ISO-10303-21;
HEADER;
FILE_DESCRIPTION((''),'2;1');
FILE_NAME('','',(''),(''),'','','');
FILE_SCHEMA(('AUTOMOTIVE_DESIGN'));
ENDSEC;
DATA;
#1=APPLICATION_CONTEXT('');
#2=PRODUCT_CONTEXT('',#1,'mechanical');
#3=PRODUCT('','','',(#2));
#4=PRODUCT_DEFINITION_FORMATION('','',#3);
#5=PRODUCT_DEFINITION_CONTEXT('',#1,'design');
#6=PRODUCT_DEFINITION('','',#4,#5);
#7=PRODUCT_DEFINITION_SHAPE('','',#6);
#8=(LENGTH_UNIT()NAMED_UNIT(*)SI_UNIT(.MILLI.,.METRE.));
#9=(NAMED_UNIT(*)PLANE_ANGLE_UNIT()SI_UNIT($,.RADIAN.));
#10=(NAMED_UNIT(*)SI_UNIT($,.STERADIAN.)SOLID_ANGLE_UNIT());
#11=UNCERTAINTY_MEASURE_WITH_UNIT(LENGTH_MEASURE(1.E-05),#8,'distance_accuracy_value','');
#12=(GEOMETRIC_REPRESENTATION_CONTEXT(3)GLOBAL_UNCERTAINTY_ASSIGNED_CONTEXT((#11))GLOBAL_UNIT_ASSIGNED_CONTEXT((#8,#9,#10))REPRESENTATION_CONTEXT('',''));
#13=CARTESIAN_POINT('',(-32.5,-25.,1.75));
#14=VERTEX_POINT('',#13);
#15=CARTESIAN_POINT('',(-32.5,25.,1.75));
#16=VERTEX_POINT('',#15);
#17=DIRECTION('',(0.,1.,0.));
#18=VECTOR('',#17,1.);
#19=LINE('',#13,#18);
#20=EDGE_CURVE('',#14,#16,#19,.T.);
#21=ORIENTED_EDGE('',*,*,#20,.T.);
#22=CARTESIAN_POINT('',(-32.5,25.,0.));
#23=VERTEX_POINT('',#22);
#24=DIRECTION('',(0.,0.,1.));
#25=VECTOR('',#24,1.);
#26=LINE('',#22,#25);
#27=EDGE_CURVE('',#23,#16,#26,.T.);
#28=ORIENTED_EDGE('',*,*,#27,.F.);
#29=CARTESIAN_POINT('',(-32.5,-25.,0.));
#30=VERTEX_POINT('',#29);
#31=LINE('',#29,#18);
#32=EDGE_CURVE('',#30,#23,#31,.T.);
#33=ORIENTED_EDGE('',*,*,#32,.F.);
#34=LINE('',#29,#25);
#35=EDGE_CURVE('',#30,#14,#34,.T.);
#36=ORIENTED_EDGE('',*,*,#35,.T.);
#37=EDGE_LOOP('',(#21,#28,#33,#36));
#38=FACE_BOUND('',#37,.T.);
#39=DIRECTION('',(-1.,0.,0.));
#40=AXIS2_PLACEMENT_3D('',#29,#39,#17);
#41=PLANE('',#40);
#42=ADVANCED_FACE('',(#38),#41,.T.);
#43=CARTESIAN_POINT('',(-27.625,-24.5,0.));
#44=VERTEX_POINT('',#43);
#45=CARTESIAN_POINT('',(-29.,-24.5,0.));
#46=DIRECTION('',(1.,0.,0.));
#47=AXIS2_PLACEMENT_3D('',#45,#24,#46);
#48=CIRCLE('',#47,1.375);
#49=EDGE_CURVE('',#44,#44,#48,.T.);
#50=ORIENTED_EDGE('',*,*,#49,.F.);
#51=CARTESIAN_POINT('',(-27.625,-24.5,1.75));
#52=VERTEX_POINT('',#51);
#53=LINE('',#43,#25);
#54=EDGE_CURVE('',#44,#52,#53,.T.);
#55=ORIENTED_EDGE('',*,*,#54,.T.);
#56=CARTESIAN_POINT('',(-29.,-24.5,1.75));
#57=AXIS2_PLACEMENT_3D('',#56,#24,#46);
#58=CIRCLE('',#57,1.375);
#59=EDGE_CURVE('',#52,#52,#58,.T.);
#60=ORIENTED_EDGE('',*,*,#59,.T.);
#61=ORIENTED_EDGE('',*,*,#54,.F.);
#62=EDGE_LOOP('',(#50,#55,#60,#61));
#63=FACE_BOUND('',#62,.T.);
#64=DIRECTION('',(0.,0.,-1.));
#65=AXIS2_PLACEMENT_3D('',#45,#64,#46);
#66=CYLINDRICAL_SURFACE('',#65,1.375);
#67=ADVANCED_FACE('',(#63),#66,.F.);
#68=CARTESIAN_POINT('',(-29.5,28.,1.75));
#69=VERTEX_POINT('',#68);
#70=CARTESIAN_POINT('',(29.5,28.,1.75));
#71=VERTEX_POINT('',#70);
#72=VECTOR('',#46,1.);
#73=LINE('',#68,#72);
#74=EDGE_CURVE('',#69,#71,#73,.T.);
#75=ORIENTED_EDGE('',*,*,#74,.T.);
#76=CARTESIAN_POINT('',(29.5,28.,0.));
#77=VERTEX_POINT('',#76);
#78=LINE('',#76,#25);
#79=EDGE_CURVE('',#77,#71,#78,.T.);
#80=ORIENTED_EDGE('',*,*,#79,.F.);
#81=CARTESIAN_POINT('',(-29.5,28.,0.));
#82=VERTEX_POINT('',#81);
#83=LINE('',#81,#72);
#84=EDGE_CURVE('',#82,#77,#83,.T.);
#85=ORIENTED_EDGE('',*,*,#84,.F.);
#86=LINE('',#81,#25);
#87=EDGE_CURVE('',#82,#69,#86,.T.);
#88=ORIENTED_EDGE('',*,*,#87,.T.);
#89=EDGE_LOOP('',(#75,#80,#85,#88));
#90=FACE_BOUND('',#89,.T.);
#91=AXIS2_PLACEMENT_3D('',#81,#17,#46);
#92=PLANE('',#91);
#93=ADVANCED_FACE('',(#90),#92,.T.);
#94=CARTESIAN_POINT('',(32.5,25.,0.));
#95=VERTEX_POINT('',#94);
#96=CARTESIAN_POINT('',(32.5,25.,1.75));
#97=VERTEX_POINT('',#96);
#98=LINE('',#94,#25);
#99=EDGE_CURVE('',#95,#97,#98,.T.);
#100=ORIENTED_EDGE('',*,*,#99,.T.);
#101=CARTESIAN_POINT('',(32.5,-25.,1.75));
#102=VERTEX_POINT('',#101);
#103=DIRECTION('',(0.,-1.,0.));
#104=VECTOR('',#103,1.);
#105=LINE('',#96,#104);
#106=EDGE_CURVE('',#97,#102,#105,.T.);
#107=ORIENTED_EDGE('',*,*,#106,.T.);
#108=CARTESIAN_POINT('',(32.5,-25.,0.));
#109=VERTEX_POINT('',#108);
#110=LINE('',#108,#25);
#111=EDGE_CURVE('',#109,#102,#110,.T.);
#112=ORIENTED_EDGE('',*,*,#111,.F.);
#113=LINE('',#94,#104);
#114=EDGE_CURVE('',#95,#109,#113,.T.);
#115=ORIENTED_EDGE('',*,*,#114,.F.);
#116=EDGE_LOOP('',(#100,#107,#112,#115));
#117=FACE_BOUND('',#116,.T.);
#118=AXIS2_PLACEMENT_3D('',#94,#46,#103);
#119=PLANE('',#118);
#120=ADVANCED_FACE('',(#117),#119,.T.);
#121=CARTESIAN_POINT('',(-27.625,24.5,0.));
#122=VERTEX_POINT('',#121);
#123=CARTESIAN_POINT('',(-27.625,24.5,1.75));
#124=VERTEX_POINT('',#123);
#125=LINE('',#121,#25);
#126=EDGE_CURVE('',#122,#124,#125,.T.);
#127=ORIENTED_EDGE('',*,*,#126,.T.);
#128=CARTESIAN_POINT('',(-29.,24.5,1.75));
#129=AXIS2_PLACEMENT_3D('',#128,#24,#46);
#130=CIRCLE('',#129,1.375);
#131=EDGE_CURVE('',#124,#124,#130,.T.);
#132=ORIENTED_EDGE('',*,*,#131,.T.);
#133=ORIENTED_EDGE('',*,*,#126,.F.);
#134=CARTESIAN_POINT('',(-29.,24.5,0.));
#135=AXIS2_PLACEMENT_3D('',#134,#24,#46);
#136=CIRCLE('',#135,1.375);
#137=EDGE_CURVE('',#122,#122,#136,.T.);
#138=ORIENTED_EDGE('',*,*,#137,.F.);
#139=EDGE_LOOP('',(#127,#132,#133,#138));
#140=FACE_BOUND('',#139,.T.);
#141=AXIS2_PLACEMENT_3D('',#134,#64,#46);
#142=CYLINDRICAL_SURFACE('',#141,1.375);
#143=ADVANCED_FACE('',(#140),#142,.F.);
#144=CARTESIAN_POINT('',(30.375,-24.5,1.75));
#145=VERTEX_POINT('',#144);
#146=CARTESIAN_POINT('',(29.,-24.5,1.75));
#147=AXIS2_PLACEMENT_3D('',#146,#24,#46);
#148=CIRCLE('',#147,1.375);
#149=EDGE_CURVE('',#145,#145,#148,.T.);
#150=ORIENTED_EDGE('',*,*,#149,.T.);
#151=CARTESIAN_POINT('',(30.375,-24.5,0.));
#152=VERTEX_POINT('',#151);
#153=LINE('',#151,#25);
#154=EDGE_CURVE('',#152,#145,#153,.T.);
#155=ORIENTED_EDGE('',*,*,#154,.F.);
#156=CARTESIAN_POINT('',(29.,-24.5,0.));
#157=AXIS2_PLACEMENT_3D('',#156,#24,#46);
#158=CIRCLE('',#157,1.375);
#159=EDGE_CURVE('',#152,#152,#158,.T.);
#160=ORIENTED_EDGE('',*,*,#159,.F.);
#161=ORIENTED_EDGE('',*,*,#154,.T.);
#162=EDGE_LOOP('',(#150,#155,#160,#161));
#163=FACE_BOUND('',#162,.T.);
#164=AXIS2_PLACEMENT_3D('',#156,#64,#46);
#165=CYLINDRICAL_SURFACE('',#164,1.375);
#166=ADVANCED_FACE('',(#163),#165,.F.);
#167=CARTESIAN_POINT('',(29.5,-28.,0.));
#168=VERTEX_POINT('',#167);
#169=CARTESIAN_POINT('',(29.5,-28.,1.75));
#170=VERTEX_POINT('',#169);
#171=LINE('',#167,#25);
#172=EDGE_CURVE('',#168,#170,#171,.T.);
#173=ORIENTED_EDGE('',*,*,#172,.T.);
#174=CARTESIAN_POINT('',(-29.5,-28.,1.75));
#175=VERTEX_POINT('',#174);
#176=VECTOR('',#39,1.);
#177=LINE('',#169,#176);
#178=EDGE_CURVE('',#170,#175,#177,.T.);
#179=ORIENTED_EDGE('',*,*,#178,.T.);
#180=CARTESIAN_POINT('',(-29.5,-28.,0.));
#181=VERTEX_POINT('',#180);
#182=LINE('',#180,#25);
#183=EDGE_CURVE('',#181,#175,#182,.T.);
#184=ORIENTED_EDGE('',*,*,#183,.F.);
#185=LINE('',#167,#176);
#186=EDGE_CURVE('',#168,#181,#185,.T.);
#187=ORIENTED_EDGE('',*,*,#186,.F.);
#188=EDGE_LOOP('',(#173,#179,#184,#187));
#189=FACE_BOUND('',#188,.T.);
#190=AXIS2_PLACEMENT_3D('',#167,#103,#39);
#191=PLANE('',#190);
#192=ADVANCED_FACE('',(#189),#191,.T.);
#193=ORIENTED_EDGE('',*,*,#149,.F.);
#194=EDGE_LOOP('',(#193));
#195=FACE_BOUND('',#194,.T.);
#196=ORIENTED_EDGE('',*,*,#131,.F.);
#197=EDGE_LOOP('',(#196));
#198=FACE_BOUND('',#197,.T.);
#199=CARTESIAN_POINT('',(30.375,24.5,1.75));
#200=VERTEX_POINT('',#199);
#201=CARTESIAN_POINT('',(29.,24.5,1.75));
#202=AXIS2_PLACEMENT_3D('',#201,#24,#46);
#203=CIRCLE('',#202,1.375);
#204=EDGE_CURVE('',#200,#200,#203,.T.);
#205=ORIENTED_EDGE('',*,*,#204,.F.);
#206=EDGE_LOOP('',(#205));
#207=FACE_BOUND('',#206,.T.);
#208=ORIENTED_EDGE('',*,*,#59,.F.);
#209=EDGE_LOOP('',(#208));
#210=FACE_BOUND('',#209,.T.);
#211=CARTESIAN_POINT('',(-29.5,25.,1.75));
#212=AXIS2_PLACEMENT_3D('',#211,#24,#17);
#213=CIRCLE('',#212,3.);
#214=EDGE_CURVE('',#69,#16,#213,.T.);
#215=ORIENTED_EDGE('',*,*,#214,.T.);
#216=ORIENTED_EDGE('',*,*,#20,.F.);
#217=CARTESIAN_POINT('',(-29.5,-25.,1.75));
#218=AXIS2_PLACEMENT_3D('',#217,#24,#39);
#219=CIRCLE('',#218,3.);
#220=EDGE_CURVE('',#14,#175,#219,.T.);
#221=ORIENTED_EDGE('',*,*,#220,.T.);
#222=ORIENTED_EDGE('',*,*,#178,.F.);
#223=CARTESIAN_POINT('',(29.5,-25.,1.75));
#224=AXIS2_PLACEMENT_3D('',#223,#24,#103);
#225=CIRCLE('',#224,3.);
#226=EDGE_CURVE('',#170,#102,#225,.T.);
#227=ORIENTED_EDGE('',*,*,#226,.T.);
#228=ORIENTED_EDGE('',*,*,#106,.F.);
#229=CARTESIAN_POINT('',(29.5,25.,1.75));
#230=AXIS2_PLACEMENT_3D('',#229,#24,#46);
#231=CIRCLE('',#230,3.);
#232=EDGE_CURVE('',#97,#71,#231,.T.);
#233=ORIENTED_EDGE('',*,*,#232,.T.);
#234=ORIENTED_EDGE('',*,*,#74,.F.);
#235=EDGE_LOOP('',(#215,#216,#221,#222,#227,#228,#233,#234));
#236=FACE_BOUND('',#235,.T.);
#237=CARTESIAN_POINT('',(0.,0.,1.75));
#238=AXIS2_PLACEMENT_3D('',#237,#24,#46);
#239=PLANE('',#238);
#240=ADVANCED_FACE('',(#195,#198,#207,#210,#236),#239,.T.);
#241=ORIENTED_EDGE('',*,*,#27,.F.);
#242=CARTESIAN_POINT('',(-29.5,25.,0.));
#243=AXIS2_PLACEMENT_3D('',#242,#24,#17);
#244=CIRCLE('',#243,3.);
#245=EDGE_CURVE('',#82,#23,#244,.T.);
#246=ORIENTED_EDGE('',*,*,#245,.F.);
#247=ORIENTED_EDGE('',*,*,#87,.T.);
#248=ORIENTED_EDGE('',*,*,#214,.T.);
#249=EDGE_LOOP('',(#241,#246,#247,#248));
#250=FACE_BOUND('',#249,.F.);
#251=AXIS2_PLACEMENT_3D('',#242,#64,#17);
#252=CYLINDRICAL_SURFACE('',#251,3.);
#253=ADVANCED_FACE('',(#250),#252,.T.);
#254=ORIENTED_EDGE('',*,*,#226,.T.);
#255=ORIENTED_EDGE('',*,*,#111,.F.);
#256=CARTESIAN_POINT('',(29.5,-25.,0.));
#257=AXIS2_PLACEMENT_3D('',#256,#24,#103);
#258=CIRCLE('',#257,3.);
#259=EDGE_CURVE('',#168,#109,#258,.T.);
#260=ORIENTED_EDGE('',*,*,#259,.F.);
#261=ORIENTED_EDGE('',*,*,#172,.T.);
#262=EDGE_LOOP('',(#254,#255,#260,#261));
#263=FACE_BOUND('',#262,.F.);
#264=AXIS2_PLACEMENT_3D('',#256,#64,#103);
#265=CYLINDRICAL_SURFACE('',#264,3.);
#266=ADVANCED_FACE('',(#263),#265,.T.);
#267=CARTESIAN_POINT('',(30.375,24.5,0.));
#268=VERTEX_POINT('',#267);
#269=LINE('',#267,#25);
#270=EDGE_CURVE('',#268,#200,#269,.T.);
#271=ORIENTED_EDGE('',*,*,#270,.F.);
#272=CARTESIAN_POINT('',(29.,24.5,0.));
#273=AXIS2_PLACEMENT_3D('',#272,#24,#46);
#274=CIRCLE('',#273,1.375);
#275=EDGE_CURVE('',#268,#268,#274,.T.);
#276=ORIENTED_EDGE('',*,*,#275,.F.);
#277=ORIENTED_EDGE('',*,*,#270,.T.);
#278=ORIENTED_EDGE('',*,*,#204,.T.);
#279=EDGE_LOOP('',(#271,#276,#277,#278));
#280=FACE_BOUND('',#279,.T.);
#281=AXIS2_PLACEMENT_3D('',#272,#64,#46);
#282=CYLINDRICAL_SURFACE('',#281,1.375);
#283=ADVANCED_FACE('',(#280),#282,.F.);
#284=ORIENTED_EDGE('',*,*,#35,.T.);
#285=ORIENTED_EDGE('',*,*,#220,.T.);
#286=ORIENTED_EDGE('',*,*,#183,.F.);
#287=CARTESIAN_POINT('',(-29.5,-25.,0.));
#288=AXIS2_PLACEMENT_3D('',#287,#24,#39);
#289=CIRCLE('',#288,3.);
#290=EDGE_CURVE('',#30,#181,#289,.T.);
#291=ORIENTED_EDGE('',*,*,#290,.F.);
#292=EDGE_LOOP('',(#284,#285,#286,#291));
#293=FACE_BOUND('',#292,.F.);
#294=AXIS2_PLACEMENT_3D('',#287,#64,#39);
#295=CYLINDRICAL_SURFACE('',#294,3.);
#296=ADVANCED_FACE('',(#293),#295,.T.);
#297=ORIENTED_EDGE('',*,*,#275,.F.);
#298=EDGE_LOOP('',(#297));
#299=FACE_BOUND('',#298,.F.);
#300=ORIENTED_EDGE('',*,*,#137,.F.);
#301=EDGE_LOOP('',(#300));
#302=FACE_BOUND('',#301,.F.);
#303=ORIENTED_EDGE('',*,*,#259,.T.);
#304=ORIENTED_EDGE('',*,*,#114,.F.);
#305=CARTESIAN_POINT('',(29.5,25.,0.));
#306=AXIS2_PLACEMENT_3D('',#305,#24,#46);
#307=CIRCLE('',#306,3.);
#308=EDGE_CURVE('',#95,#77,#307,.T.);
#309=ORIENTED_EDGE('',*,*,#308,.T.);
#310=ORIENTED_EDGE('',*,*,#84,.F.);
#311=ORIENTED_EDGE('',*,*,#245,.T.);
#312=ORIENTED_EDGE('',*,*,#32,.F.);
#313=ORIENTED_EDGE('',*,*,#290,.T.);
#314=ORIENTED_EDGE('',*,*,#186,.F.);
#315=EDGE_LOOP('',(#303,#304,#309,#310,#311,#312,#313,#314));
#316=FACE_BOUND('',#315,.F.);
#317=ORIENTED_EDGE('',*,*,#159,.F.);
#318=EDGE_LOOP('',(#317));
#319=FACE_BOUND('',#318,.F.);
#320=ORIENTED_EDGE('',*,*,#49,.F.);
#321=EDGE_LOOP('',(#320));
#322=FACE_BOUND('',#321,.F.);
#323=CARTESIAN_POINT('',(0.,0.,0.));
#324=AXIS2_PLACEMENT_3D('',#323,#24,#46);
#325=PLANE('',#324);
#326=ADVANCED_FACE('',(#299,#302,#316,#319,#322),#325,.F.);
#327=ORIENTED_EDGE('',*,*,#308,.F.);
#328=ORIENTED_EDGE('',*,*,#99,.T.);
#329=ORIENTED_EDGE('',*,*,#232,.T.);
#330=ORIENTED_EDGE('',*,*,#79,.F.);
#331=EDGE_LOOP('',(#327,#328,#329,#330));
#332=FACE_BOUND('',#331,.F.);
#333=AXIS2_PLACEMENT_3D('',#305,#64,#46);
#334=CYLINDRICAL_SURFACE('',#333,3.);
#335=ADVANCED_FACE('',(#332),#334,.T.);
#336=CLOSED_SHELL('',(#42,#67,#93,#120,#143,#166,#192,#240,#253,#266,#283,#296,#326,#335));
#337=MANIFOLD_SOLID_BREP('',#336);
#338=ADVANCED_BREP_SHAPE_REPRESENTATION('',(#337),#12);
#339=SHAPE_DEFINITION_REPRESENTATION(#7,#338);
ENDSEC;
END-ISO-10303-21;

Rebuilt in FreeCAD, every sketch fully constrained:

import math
import FreeCAD as App
import Part
import Sketcher

V = App.Vector
Q = App.Units.Quantity

doc = App.newDocument("Part")
body = doc.addObject("PartDesign::Body", "Body")

sketch1 = doc.addObject("Sketcher::SketchObject", "Sketch")
body.addObject(sketch1)
sketch1.AttachmentSupport = (doc.XY_Plane, [""])
sketch1.MapMode = "FlatFace"
sketch1.addGeometry([
    Part.LineSegment(V(29.5, 28, 0), V(-29.5, 28, 0)),
    Part.ArcOfCircle(Part.Circle(V(-29.5, 25, 0), V(0, 0, 1), 3), math.radians(90), math.radians(180)),
    Part.LineSegment(V(-32.5, 25, 0), V(-32.5, -25, 0)),
    Part.ArcOfCircle(Part.Circle(V(-29.5, -25, 0), V(0, 0, 1), 3), math.radians(180), math.radians(270)),
    Part.LineSegment(V(-29.5, -28, 0), V(29.5, -28, 0)),
    Part.ArcOfCircle(Part.Circle(V(29.5, -25, 0), V(0, 0, 1), 3), math.radians(-90), math.radians(0)),
    Part.LineSegment(V(32.5, -25, 0), V(32.5, 25, 0)),
    Part.ArcOfCircle(Part.Circle(V(29.5, 25, 0), V(0, 0, 1), 3), math.radians(0), math.radians(90)),
    Part.Circle(V(-29, -24.5, 0), V(0, 0, 1), 1.4),
    Part.Circle(V(29, -24.5, 0), V(0, 0, 1), 1.4),
    Part.Circle(V(-29, 24.5, 0), V(0, 0, 1), 1.4),
    Part.Circle(V(29, 24.5, 0), V(0, 0, 1), 1.4),
], False)
sketch1.addConstraint([
    Sketcher.Constraint("Tangent", 0, 2, 1, 1),
    Sketcher.Constraint("Tangent", 1, 2, 2, 1),
    Sketcher.Constraint("Tangent", 2, 2, 3, 1),
    Sketcher.Constraint("Tangent", 3, 2, 4, 1),
    Sketcher.Constraint("Tangent", 4, 2, 5, 1),
    Sketcher.Constraint("Tangent", 5, 2, 6, 1),
    Sketcher.Constraint("Tangent", 6, 2, 7, 1),
    Sketcher.Constraint("Tangent", 7, 2, 0, 1),
    Sketcher.Constraint("Horizontal", 0),
    Sketcher.Constraint("Vertical", 2),
    Sketcher.Constraint("Horizontal", 4),
    Sketcher.Constraint("Vertical", 6),
    Sketcher.Constraint("Equal", 1, 3),
    Sketcher.Constraint("Equal", 3, 5),
    Sketcher.Constraint("Equal", 5, 7),
    Sketcher.Constraint("Equal", 8, 9),
    Sketcher.Constraint("Equal", 9, 10),
    Sketcher.Constraint("Equal", 10, 11),
    Sketcher.Constraint("Symmetric", 1, 3, 5, 3, -1, 1),
    Sketcher.Constraint("Symmetric", 9, 3, 10, 3, -1, 1),
    Sketcher.Constraint("Symmetric", 8, 3, 11, 3, -1, 1),
    Sketcher.Constraint("Symmetric", 8, 3, 9, 3, -2),
    Sketcher.Constraint("Radius", 1, Q("3 mm")),
    Sketcher.Constraint("Diameter", 8, Q("2.75 mm")),
    Sketcher.Constraint("DistanceX", 8, 3, 9, 3, Q("58 mm")),
    Sketcher.Constraint("DistanceY", 8, 3, 10, 3, Q("49 mm")),
    Sketcher.Constraint("DistanceX", 0, 2, 0, 1, Q("59 mm")),
    Sketcher.Constraint("DistanceY", 2, 2, 2, 1, Q("50 mm")),
])
pad1 = doc.addObject("PartDesign::Pad", "Pad")
body.addObject(pad1)
pad1.Profile = sketch1
pad1.Length = 1.75

doc.recompute()
